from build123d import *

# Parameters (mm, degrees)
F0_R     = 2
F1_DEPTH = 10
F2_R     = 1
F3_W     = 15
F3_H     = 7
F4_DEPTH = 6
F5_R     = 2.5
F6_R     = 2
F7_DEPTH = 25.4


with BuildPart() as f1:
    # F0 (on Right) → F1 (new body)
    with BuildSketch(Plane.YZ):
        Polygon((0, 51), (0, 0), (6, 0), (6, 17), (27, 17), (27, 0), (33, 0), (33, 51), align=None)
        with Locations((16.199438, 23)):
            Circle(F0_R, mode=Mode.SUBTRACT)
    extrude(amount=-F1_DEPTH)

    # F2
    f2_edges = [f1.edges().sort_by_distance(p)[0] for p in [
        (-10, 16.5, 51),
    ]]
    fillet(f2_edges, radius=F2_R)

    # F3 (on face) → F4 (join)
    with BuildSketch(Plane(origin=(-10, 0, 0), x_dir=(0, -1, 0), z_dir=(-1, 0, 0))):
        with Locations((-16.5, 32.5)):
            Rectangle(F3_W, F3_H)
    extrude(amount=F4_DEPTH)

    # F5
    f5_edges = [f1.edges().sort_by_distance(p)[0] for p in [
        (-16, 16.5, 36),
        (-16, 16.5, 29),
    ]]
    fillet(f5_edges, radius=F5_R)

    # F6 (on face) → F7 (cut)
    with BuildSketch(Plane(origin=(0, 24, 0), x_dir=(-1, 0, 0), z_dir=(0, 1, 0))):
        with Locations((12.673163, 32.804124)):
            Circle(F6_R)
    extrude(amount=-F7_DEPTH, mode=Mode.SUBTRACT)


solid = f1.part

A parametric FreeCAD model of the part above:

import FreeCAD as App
import Part
import Sketcher
from FreeCAD import Vector


def edges_at(feature, points):
    """Names of the edges that pass closest to the given points."""
    edges = feature.Shape.Edges
    near = lambda p: min(range(len(edges)), key=lambda i: edges[i].distToShape(Part.Vertex(*p))[0])
    return sorted({f"Edge{near(p) + 1}" for p in points})

doc = App.newDocument("Part")
body = doc.addObject("PartDesign::Body", "Body")

# Sketch on YZ plane
sketch1 = body.newObject("Sketcher::SketchObject", "Sketch")
sketch1.AttachmentSupport = (doc.getObject("YZ_Plane"), [""])
sketch1.MapMode = "FlatFace"
sketch1.addGeometry([
    Part.LineSegment(Vector(0, 51, 0), Vector(0, 0, 0)),  # 0
    Part.LineSegment(Vector(0, 0, 0), Vector(6, 0, 0)),  # 1
    Part.LineSegment(Vector(6, 0, 0), Vector(6, 17, 0)),  # 2
    Part.LineSegment(Vector(6, 17, 0), Vector(27, 17, 0)),  # 3
    Part.LineSegment(Vector(27, 17, 0), Vector(27, 0, 0)),  # 4
    Part.LineSegment(Vector(27, 0, 0), Vector(33, 0, 0)),  # 5
    Part.LineSegment(Vector(33, 0, 0), Vector(33, 51, 0)),  # 6
    Part.LineSegment(Vector(33, 51, 0), Vector(0, 51, 0)),  # 7
    Part.Circle(Vector(16.2, 23, 0), Vector(0, 0, 1), 2),  # 8
], False)
sketch1.addConstraint([
    Sketcher.Constraint("Coincident", 0, 2, 1, 1),
    Sketcher.Constraint("Coincident", 1, 2, 2, 1),
    Sketcher.Constraint("Coincident", 2, 2, 3, 1),
    Sketcher.Constraint("Coincident", 3, 2, 4, 1),
    Sketcher.Constraint("Coincident", 4, 2, 5, 1),
    Sketcher.Constraint("Coincident", 5, 2, 6, 1),
    Sketcher.Constraint("Coincident", 6, 2, 7, 1),
    Sketcher.Constraint("Coincident", 7, 2, 0, 1),
    Sketcher.Constraint("Vertical", 0),
    Sketcher.Constraint("Horizontal", 1),
    Sketcher.Constraint("Vertical", 2),
    Sketcher.Constraint("Horizontal", 3),
    Sketcher.Constraint("Vertical", 4),
    Sketcher.Constraint("Horizontal", 5),
    Sketcher.Constraint("Vertical", 6),
    Sketcher.Constraint("Horizontal", 7),
    Sketcher.Constraint("Coincident", 0, 2, -1, 1),
    Sketcher.Constraint("PointOnObject", 4, 2, -1),
    Sketcher.Constraint("Equal", 1, 5),
    Sketcher.Constraint("Diameter", 8, 4.0),
    Sketcher.Constraint("DistanceX", 1, 1, 1, 2, 6.0),
    Sketcher.Constraint("DistanceX", 3, 1, 3, 2, 21.0),
    Sketcher.Constraint("DistanceY", 0, 2, 0, 1, 51.0),
    Sketcher.Constraint("DistanceY", 2, 1, 2, 2, 17.0),
    Sketcher.Constraint("DistanceY", -1, 1, 8, 3, 23.0),
    Sketcher.Constraint("DistanceX", -1, 1, 8, 3, 16.199438),
])
pad1 = body.newObject("PartDesign::Pad", "Pad")
pad1.Profile = sketch1
pad1.Length = 10
pad1.Reversed = True
doc.recompute()

fillet = body.newObject("PartDesign::Fillet", "Fillet")
fillet.Base = (pad1, edges_at(pad1, [(-10, 16.5, 51)]))
fillet.Radius = 1

# Sketch on YZ plane
sketch2 = body.newObject("Sketcher::SketchObject", "Sketch001")
sketch2.AttachmentSupport = (doc.getObject("YZ_Plane"), [""])
sketch2.MapMode = "FlatFace"
sketch2.AttachmentOffset = App.Placement(Vector(0, 0, -10), App.Rotation())
sketch2.addGeometry([
    Part.LineSegment(Vector(24, 36, 0), Vector(24, 29, 0)),
    Part.LineSegment(Vector(24, 29, 0), Vector(9, 29, 0)),
    Part.LineSegment(Vector(9, 29, 0), Vector(9, 36, 0)),
    Part.LineSegment(Vector(9, 36, 0), Vector(24, 36, 0)),
], False)
sketch2.addConstraint([
    Sketcher.Constraint("Coincident", 0, 2, 1, 1),
    Sketcher.Constraint("Coincident", 1, 2, 2, 1),
    Sketcher.Constraint("Coincident", 2, 2, 3, 1),
    Sketcher.Constraint("Coincident", 3, 2, 0, 1),
    Sketcher.Constraint("Vertical", 0),
    Sketcher.Constraint("Horizontal", 1),
    Sketcher.Constraint("Vertical", 2),
    Sketcher.Constraint("Horizontal", 3),
    Sketcher.Constraint("DistanceX", 1, 2, 1, 1, 15.0),
    Sketcher.Constraint("DistanceY", 0, 2, 0, 1, 7.0),
    Sketcher.Constraint("DistanceX", -1, 1, 0, 2, 24.0),
    Sketcher.Constraint("DistanceY", -1, 1, 0, 2, 29.0),
])
pad2 = body.newObject("PartDesign::Pad", "Pad001")
pad2.Profile = sketch2
pad2.Length = 6
pad2.Reversed = True
doc.recompute()

fillet2 = body.newObject("PartDesign::Fillet", "Fillet001")
fillet2.Base = (pad2, edges_at(pad2, [(-16, 16.5, 36), (-16, 16.5, 29)]))
fillet2.Radius = 2.5

# Sketch on XZ plane
sketch3 = body.newObject("Sketcher::SketchObject", "Sketch002")
sketch3.AttachmentSupport = (doc.getObject("XZ_Plane"), [""])
sketch3.MapMode = "FlatFace"
sketch3.AttachmentOffset = App.Placement(Vector(0, 0, -24), App.Rotation())
sketch3.addGeometry(Part.Circle(Vector(-12.7, 32.8, 0), Vector(0, 0, 1), 2), False)
sketch3.addConstraint([
    Sketcher.Constraint("Diameter", 0, 4.0),
    Sketcher.Constraint("DistanceX", 0, 3, -1, 1, 12.673163),
    Sketcher.Constraint("DistanceY", -1, 1, 0, 3, 32.804124),
])
pocket1 = body.newObject("PartDesign::Pocket", "Pocket")
pocket1.Profile = sketch3
pocket1.Length = 25.4
pocket1.Reversed = True

doc.recompute()
